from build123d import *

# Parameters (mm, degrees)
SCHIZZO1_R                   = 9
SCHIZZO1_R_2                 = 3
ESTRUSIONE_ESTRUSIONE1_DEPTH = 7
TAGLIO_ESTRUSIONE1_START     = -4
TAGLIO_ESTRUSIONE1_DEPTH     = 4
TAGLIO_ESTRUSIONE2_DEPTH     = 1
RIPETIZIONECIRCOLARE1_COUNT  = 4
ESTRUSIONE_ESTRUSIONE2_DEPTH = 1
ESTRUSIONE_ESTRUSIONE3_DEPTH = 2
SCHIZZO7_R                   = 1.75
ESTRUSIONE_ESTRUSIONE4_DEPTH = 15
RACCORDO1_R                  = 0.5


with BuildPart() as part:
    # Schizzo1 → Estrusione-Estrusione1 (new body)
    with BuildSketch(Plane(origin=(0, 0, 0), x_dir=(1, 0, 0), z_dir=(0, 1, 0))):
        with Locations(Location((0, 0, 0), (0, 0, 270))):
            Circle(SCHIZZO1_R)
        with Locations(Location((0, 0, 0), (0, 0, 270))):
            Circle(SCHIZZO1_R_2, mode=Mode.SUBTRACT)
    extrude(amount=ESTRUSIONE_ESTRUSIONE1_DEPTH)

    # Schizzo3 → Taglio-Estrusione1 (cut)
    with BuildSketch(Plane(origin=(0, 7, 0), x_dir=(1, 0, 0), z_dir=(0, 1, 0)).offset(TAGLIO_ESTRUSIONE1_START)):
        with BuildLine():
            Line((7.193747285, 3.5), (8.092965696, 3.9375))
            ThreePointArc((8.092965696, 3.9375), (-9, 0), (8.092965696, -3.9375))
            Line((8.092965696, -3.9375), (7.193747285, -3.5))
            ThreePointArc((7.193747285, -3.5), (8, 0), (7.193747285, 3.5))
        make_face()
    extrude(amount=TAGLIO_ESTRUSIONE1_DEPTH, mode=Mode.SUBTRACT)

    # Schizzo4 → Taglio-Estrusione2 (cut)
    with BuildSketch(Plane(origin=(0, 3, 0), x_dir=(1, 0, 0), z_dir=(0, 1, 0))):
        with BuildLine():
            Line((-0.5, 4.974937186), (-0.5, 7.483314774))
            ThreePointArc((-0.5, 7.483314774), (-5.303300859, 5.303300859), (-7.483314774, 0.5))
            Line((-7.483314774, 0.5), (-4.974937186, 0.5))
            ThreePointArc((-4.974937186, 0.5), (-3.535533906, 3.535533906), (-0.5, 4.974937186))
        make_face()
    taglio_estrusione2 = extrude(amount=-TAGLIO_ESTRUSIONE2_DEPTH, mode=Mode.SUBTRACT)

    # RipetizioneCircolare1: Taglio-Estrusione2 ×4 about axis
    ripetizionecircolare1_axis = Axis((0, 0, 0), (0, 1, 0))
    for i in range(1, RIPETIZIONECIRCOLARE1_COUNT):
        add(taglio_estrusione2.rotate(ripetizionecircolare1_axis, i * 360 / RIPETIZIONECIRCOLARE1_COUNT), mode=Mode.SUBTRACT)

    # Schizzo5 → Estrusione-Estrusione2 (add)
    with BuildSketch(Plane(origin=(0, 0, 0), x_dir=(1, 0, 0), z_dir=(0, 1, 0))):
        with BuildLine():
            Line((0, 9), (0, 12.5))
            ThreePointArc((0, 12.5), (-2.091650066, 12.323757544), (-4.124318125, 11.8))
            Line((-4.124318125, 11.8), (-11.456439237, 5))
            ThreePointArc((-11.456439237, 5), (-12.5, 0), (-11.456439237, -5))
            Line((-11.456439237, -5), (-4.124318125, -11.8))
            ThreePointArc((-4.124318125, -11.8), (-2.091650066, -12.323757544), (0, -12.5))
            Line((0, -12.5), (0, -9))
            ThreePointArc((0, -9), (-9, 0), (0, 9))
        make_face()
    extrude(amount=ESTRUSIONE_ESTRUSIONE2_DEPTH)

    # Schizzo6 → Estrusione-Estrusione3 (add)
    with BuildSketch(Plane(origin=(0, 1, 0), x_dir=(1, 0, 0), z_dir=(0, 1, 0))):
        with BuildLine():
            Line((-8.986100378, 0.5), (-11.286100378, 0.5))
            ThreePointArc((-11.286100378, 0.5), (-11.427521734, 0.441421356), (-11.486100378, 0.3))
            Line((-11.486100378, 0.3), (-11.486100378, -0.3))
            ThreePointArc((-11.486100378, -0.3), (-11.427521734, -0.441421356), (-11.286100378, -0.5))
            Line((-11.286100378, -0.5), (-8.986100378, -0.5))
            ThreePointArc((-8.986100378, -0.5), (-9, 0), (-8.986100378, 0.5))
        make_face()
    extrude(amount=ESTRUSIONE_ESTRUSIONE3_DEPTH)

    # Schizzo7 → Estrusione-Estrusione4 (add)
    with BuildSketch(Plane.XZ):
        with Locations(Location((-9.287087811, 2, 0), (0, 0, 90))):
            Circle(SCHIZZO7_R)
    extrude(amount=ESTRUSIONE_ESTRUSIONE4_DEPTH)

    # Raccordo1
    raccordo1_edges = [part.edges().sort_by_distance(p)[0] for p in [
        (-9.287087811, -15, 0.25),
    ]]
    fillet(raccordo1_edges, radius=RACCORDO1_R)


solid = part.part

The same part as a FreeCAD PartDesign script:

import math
import FreeCAD as App
import Part
import Sketcher


def edges_at(feature, points):
    """Names of the edges that pass closest to the given points."""
    edges = feature.Shape.Edges
    near = lambda p: min(range(len(edges)), key=lambda i: edges[i].distToShape(Part.Vertex(*p))[0])
    return sorted({f"Edge{near(p) + 1}" for p in points})

doc = App.newDocument("Part")
body = doc.addObject("PartDesign::Body", "Body")

sketch1 = body.newObject("Sketcher::SketchObject", "Sketch")
sketch1.AttachmentSupport = (doc.getObject("XZ_Plane"), [""])
sketch1.MapMode = "FlatFace"
sketch1.addGeometry([
    Part.Circle(App.Vector(0, 0, 0), App.Vector(0, 0, 1), 9),
    Part.Circle(App.Vector(0, 0, 0), App.Vector(0, 0, 1), 3),
], False)
sketch1.addConstraint([
    Sketcher.Constraint("Coincident", 0, 3, -1, 1),
    Sketcher.Constraint("Coincident", 1, 3, -1, 1),
    Sketcher.Constraint("Diameter", 0, 18.0),
    Sketcher.Constraint("Diameter", 1, 6.0),
])
pad1 = body.newObject("PartDesign::Pad", "Pad")
pad1.Profile = sketch1
pad1.Length = 7
pad1.Reversed = True

sketch2 = body.newObject("Sketcher::SketchObject", "Sketch001")
sketch2.AttachmentSupport = (doc.getObject("XZ_Plane"), [""])
sketch2.MapMode = "FlatFace"
sketch2.AttachmentOffset = App.Placement(App.Vector(0, 0, -3), App.Rotation())
sketch2.addGeometry([
    Part.LineSegment(App.Vector(7.2, -3.5, 0), App.Vector(8.1, -3.9, 0)),
    Part.ArcOfCircle(Part.Circle(App.Vector(0, 0, 0), App.Vector(0, 0, 1), 9), math.radians(26), math.radians(334)),
    Part.LineSegment(App.Vector(8.1, 3.9, 0), App.Vector(7.2, 3.5, 0)),
    Part.ArcOfCircle(Part.Circle(App.Vector(0, 0, 0), App.Vector(0, 0, 1), 8), math.radians(-26), math.radians(26)),
], False)
sketch2.addConstraint([
    Sketcher.Constraint("Coincident", 0, 2, 1, 2),
    Sketcher.Constraint("Coincident", 1, 1, 2, 1),
    Sketcher.Constraint("Coincident", 2, 2, 3, 2),
    Sketcher.Constraint("Coincident", 3, 1, 0, 1),
    Sketcher.Constraint("Coincident", 1, 3, -1, 1),
    Sketcher.Constraint("Coincident", 3, 3, -1, 1),
    Sketcher.Constraint("Vertical", 0, 2, 1, 1),
    Sketcher.Constraint("Vertical", 2, 2, 3, 1),
    Sketcher.Constraint("Radius", 1, 9.0),
    Sketcher.Constraint("Radius", 3, 8.0),
    Sketcher.Constraint("DistanceY", 3, 1, 2, 2, 7.0),
    Sketcher.Constraint("DistanceY", 0, 2, 1, 1, 7.875),
])
pocket1 = body.newObject("PartDesign::Pocket", "Pocket")
pocket1.Profile = sketch2
pocket1.Length = 4

sketch3 = body.newObject("Sketcher::SketchObject", "Sketch002")
sketch3.AttachmentSupport = (doc.getObject("XZ_Plane"), [""])
sketch3.MapMode = "FlatFace"
sketch3.AttachmentOffset = App.Placement(App.Vector(0, 0, -3), App.Rotation())
sketch3.addGeometry([
    Part.LineSegment(App.Vector(-0.5, -5, 0), App.Vector(-0.5, -7.5, 0)),
    Part.ArcOfCircle(Part.Circle(App.Vector(0, 0, 0), App.Vector(0, 0, 1), 7.5), math.radians(-176), math.radians(-94)),
    Part.LineSegment(App.Vector(-7.5, -0.5, 0), App.Vector(-5, -0.5, 0)),
    Part.ArcOfCircle(Part.Circle(App.Vector(0, 0, 0), App.Vector(0, 0, 1), 5), math.radians(-174), math.radians(-96)),
], False)
sketch3.addConstraint([
    Sketcher.Constraint("Coincident", 0, 2, 1, 2),
    Sketcher.Constraint("Coincident", 1, 1, 2, 1),
    Sketcher.Constraint("Coincident", 2, 2, 3, 1),
    Sketcher.Constraint("Coincident", 3, 2, 0, 1),
    Sketcher.Constraint("Vertical", 0),
    Sketcher.Constraint("Horizontal", 2),
    Sketcher.Constraint("Coincident", 1, 3, -1, 1),
    Sketcher.Constraint("Coincident", 3, 3, -1, 1),
    Sketcher.Constraint("Equal", 2, 0),
    Sketcher.Constraint("Radius", 3, 5.0),
    Sketcher.Constraint("Radius", 1, 7.5),
    Sketcher.Constraint("DistanceX", 0, 2, -1, 1, 0.5),
])
pocket2 = body.newObject("PartDesign::Pocket", "Pocket001")
pocket2.Profile = sketch3
pocket2.Length = 1
pocket2.Reversed = True
doc.recompute()

polarpattern = body.newObject("PartDesign::PolarPattern", "PolarPattern")
polarpattern.Originals = [pocket2]
polarpattern.Axis = (doc.getObject("Y_Axis"), [""])
polarpattern.Angle = 360
polarpattern.Occurrences = 4
body.Tip = polarpattern

sketch4 = body.newObject("Sketcher::SketchObject", "Sketch003")
sketch4.AttachmentSupport = (doc.getObject("XZ_Plane"), [""])
sketch4.MapMode = "FlatFace"
sketch4.addGeometry([
    Part.LineSegment(App.Vector(0, -9, 0), App.Vector(0, -12.5, 0)),
    Part.ArcOfCircle(Part.Circle(App.Vector(0, 0, 0), App.Vector(0, 0, 1), 12.5), math.radians(-109.27), math.radians(-90)),
    Part.LineSegment(App.Vector(-4.1, -11.8, 0), App.Vector(-11.5, -5, 0)),
    Part.ArcOfCircle(Part.Circle(App.Vector(0, 0, 0), App.Vector(0, 0, 1), 12.5), math.radians(156), math.radians(204)),
    Part.LineSegment(App.Vector(-11.5, 5, 0), App.Vector(-4.1, 11.8, 0)),
    Part.ArcOfCircle(Part.Circle(App.Vector(0, 0, 0), App.Vector(0, 0, 1), 12.5), math.radians(90), math.radians(109.27)),
    Part.LineSegment(App.Vector(0, 12.5, 0), App.Vector(0, 9, 0)),
    Part.ArcOfCircle(Part.Circle(App.Vector(0, 0, 0), App.Vector(0, 0, 1), 9), math.radians(90), math.radians(270)),
], False)
sketch4.addConstraint([
    Sketcher.Constraint("Coincident", 0, 2, 1, 2),
    Sketcher.Constraint("Coincident", 1, 1, 2, 1),
    Sketcher.Constraint("Coincident", 2, 2, 3, 2),
    Sketcher.Constraint("Coincident", 3, 1, 4, 1),
    Sketcher.Constraint("Coincident", 4, 2, 5, 2),
    Sketcher.Constraint("Coincident", 5, 1, 6, 1),
    Sketcher.Constraint("Coincident", 6, 2, 7, 1),
    Sketcher.Constraint("Coincident", 7, 2, 0, 1),
    Sketcher.Constraint("Vertical", 0),
    Sketcher.Constraint("Vertical", 6),
    Sketcher.Constraint("Coincident", 1, 3, -1, 1),
    Sketcher.Constraint("Coincident", 3, 3, -1, 1),
    Sketcher.Constraint("Coincident", 5, 3, -1, 1),
    Sketcher.Constraint("Coincident", 7, 3, -1, 1),
    Sketcher.Constraint("Equal", 1, 3),
    Sketcher.Constraint("Equal", 3, 5),
    Sketcher.Constraint("PointOnObject", 0, 2, -2),
    Sketcher.Constraint("PointOnObject", 5, 1, -2),
    Sketcher.Constraint("Vertical", 2, 2, 3, 1),
    Sketcher.Constraint("Vertical", 1, 1, 4, 2),
    Sketcher.Constraint("Radius", 7, 9.0),
    Sketcher.Constraint("Radius", 1, 12.5),
    Sketcher.Constraint("Distance", 2, 10.0),
    Sketcher.Constraint("DistanceY", 2, 2, -1, 1, 5.0),
])
pad2 = body.newObject("PartDesign::Pad", "Pad001")
pad2.Profile = sketch4
pad2.Length = 1
pad2.Reversed = True

sketch5 = body.newObject("Sketcher::SketchObject", "Sketch004")
sketch5.AttachmentSupport = (doc.getObject("XZ_Plane"), [""])
sketch5.MapMode = "FlatFace"
sketch5.AttachmentOffset = App.Placement(App.Vector(0, 0, -1), App.Rotation())
sketch5.addGeometry([
    Part.LineSegment(App.Vector(-8.99, -0.5, 0), App.Vector(-11.29, -0.5, 0)),
    Part.ArcOfCircle(Part.Circle(App.Vector(-11.29, -0.3, 0), App.Vector(0, 0, 1), 0.2), math.radians(-180), math.radians(-90)),
    Part.LineSegment(App.Vector(-11.49, -0.3, 0), App.Vector(-11.49, 0.3, 0)),
    Part.ArcOfCircle(Part.Circle(App.Vector(-11.29, 0.3, 0), App.Vector(0, 0, 1), 0.2), math.radians(90), math.radians(180)),
    Part.LineSegment(App.Vector(-11.29, 0.5, 0), App.Vector(-8.99, 0.5, 0)),
    Part.ArcOfCircle(Part.Circle(App.Vector(0, 0, 0), App.Vector(0, 0, 1), 9), math.radians(176.82), math.radians(183.18)),
], False)
sketch5.addConstraint([
    Sketcher.Constraint("Tangent", 0, 2, 1, 2),
    Sketcher.Constraint("Tangent", 1, 1, 2, 1),
    Sketcher.Constraint("Tangent", 2, 2, 3, 2),
    Sketcher.Constraint("Tangent", 3, 1, 4, 1),
    Sketcher.Constraint("Coincident", 4, 2, 5, 1),
    Sketcher.Constraint("Coincident", 5, 2, 0, 1),
    Sketcher.Constraint("Horizontal", 0),
    Sketcher.Constraint("Vertical", 2),
    Sketcher.Constraint("Horizontal", 4),
    Sketcher.Constraint("Coincident", 5, 3, -1, 1),
    Sketcher.Constraint("Equal", 1, 3),
    Sketcher.Constraint("Vertical", 4, 2, 5, 2),
    Sketcher.Constraint("Radius", 5, 9.0),
    Sketcher.Constraint("Radius", 1, 0.2),
    Sketcher.Constraint("DistanceX", 0, 2, 0, 1, 2.3),
    Sketcher.Constraint("DistanceY", 2, 1, 2, 2, 0.6),
])
pad3 = body.newObject("PartDesign::Pad", "Pad002")
pad3.Profile = sketch5
pad3.Length = 2
pad3.Reversed = True

sketch6 = body.newObject("Sketcher::SketchObject", "Sketch005")
sketch6.AttachmentSupport = (doc.getObject("XZ_Plane"), [""])
sketch6.MapMode = "FlatFace"
sketch6.addGeometry(Part.Circle(App.Vector(-9.3, 2, 0), App.Vector(0, 0, 1), 1.8), False)
sketch6.addConstraint([
    Sketcher.Constraint("Diameter", 0, 3.5),
    Sketcher.Constraint("DistanceY", -1, 1, 0, 3, 2.0),
    Sketcher.Constraint("DistanceX", 0, 3, -1, 1, 9.287088),
])
pad4 = body.newObject("PartDesign::Pad", "Pad003")
pad4.Profile = sketch6
pad4.Length = 15
doc.recompute()

fillet = body.newObject("PartDesign::Fillet", "Fillet")
fillet.Base = (pad4, edges_at(pad4, [(-9.287, -15, 0.25)]))
fillet.Radius = 0.5

doc.recompute()
